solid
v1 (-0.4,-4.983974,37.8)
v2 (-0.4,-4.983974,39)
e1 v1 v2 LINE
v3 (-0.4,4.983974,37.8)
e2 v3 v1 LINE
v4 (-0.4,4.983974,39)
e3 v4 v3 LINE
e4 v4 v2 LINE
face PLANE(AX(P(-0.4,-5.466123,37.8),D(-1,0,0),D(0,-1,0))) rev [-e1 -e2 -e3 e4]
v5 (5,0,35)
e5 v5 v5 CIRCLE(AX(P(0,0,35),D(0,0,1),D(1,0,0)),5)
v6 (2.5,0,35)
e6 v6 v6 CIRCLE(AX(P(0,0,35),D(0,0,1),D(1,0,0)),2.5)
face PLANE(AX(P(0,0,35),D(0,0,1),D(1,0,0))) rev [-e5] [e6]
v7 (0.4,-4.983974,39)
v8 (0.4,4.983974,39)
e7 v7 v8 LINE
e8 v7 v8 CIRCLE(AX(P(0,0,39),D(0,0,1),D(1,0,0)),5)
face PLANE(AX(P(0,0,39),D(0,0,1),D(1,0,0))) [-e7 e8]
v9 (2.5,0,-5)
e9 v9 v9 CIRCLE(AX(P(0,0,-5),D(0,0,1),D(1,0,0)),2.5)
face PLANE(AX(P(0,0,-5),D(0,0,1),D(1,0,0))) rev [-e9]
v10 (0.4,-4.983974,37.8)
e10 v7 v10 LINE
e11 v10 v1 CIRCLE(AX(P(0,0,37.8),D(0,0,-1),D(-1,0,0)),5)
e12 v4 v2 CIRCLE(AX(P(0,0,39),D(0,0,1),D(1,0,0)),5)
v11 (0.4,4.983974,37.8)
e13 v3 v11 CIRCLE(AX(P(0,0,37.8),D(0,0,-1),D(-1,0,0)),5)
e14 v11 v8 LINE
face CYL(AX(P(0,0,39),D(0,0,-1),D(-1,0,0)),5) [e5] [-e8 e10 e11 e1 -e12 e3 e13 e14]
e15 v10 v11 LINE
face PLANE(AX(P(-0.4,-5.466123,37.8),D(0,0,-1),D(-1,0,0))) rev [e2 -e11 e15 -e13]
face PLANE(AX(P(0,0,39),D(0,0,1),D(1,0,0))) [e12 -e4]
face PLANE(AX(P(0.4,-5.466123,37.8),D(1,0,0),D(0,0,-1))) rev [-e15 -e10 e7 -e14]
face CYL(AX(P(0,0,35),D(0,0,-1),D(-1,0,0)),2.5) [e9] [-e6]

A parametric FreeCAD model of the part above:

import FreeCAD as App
import Part
import Sketcher

doc = App.newDocument("Part")
body = doc.addObject("PartDesign::Body", "Body")

sketch1 = doc.addObject("Sketcher::SketchObject", "Sketch")
body.addObject(sketch1)
sketch1.AttachmentSupport = (doc.XY_Plane, [""])
sketch1.MapMode = "FlatFace"
sketch1.addGeometry(Part.Circle(App.Vector(0, 0, 0), App.Vector(0, 0, 1), 2.5), False)
sketch1.addConstraint(Sketcher.Constraint("Coincident", 0, 3, -1, 1))
sketch1.addConstraint(Sketcher.Constraint("Diameter", 0, 5.0))
pad1 = doc.addObject("PartDesign::Pad", "Pad")
body.addObject(pad1)
pad1.Profile = sketch1
pad1.Type = "TwoLengths"
pad1.Length = 35
pad1.Length2 = 5

sketch2 = doc.addObject("Sketcher::SketchObject", "Sketch001")
body.addObject(sketch2)
sketch2.AttachmentSupport = (doc.XY_Plane, [""])
sketch2.MapMode = "FlatFace"
sketch2.AttachmentOffset = App.Placement(App.Vector(0, 0, 35), App.Rotation())
sketch2.addGeometry(Part.Circle(App.Vector(0, 0, 0), App.Vector(0, 0, 1), 5), False)
sketch2.addConstraint(Sketcher.Constraint("Coincident", 0, 3, -1, 1))
sketch2.addConstraint(Sketcher.Constraint("Diameter", 0, 10.0))
pad2 = doc.addObject("PartDesign::Pad", "Pad001")
body.addObject(pad2)
pad2.Profile = sketch2
pad2.Length = 4

sketch3 = doc.addObject("Sketcher::SketchObject", "Sketch002")
body.addObject(sketch3)
sketch3.AttachmentSupport = (doc.XY_Plane, [""])
sketch3.MapMode = "FlatFace"
sketch3.AttachmentOffset = App.Placement(App.Vector(0, 0, 39), App.Rotation())
sketch3.addGeometry(Part.LineSegment(App.Vector(-0.4, 5.554883, 0), App.Vector(-0.4, -5.466123, 0)), False)
sketch3.addGeometry(Part.LineSegment(App.Vector(-0.4, -5.466123, 0), App.Vector(0.4, -5.466123, 0)), False)
sketch3.addGeometry(Part.LineSegment(App.Vector(0.4, -5.466123, 0), App.Vector(0.4, 5.554883, 0)), False)
sketch3.addGeometry(Part.LineSegment(App.Vector(0.4, 5.554883, 0), App.Vector(-0.4, 5.554883, 0)), False)
sketch3.addConstraint(Sketcher.Constraint("Coincident", 0, 2, 1, 1))
sketch3.addConstraint(Sketcher.Constraint("Coincident", 1, 2, 2, 1))
sketch3.addConstraint(Sketcher.Constraint("Coincident", 2, 2, 3, 1))
sketch3.addConstraint(Sketcher.Constraint("Coincident", 3, 2, 0, 1))
sketch3.addConstraint(Sketcher.Constraint("Vertical", 0))
sketch3.addConstraint(Sketcher.Constraint("Horizontal", 1))
sketch3.addConstraint(Sketcher.Constraint("Vertical", 2))
sketch3.addConstraint(Sketcher.Constraint("Horizontal", 3))
sketch3.addConstraint(Sketcher.Constraint("DistanceX", 1, 1, 1, 2, 0.8))
sketch3.addConstraint(Sketcher.Constraint("DistanceX", 0, 2, -1, 1, 0.4))
sketch3.addConstraint(Sketcher.Constraint("DistanceY", 0, 2, 0, 1, 11.021006))
sketch3.addConstraint(Sketcher.Constraint("DistanceY", 0, 2, -1, 1, 5.466123))
pocket1 = doc.addObject("PartDesign::Pocket", "Pocket")
body.addObject(pocket1)
pocket1.Profile = sketch3
pocket1.Length = 1.2

doc.recompute()
